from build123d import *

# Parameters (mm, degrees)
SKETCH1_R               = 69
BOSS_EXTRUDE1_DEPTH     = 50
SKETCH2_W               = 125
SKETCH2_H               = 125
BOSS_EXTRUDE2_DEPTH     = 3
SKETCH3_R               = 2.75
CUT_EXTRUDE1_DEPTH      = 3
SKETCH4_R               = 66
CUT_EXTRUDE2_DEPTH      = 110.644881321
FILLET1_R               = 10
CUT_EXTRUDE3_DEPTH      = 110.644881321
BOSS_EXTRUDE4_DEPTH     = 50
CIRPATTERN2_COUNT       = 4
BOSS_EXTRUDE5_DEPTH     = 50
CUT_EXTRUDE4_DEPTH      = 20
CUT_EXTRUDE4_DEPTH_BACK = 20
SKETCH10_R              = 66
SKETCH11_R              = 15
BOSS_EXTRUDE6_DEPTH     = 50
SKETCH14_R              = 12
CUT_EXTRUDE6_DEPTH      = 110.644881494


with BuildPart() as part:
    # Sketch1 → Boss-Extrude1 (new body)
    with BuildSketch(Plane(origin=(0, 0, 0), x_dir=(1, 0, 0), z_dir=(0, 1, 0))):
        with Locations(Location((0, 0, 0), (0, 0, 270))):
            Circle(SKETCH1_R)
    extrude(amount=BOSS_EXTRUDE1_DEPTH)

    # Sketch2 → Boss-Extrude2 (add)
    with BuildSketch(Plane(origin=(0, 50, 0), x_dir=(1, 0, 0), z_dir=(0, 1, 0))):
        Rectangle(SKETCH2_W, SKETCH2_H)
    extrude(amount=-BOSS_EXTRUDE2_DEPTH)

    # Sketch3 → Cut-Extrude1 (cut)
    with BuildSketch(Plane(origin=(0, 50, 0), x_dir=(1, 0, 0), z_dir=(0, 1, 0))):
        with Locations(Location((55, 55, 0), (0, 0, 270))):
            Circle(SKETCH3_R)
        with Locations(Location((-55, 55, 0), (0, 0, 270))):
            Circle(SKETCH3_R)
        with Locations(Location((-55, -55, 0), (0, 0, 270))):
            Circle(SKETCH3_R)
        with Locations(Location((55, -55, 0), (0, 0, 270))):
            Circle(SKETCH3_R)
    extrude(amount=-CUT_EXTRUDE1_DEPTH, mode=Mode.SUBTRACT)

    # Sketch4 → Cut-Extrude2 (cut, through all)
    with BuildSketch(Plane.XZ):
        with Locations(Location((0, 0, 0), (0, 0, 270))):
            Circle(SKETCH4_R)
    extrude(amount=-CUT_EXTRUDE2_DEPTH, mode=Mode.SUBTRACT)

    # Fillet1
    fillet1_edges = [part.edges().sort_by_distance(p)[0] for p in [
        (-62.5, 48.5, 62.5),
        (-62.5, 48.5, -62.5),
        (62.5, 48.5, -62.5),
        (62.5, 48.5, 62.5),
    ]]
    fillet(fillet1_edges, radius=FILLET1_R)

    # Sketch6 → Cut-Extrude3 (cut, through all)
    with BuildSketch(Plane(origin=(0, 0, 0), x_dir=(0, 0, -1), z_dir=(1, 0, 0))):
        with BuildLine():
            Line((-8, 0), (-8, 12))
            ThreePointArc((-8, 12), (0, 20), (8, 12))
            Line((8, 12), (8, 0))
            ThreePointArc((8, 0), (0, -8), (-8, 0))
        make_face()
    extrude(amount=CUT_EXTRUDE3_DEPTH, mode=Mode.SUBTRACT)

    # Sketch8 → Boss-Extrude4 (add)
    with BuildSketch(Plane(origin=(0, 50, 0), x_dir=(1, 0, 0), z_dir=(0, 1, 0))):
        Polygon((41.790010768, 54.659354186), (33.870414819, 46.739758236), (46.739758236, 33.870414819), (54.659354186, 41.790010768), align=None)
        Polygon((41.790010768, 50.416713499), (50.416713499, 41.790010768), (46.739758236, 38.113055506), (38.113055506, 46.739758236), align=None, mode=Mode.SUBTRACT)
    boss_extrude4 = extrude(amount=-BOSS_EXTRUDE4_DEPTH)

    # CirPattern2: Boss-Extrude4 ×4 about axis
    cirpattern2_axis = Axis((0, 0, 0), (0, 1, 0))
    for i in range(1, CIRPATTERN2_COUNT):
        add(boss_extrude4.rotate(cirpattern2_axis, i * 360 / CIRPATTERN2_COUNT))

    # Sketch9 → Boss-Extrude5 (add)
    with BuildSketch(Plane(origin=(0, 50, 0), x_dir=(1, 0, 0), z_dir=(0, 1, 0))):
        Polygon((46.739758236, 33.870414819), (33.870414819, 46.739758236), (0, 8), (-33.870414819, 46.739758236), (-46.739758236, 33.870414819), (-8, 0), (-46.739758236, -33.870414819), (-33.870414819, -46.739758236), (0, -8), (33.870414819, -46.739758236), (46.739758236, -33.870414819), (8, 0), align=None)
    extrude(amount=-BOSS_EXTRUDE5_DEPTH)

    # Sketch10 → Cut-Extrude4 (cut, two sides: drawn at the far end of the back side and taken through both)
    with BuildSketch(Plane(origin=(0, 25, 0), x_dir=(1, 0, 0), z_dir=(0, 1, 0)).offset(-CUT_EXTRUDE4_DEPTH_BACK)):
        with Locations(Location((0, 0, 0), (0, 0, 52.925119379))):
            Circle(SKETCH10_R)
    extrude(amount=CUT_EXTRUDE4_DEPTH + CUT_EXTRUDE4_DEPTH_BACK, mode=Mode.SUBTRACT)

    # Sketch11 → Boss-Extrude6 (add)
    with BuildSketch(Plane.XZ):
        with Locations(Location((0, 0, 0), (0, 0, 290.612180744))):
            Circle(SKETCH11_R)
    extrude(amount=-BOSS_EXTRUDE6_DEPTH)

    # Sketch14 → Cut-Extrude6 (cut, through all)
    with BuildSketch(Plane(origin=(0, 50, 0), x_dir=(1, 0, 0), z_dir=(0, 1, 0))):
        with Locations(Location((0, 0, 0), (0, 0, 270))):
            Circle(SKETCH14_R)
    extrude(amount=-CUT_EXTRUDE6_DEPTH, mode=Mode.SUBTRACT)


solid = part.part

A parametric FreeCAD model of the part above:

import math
import FreeCAD as App
import Part
import Sketcher
Q = App.Units.Quantity


def edges_at(feature, points):
    """Names of the edges that pass closest to the given points."""
    edges = feature.Shape.Edges
    near = lambda p: min(range(len(edges)), key=lambda i: edges[i].distToShape(Part.Vertex(*p))[0])
    return sorted({f"Edge{near(p) + 1}" for p in points})


def add_polygon(sketch, points):
    """Adds a closed chain of lines whose ends are joined by coincident constraints."""
    first, n = sketch.GeometryCount, len(points)
    for a, b in zip(points, points[1:] + points[:1]):
        sketch.addGeometry(Part.LineSegment(App.Vector(*a, 0), App.Vector(*b, 0)), False)
    for i in range(n):
        sketch.addConstraint(Sketcher.Constraint("Coincident", first + i, 2, first + (i + 1) % n, 1))

doc = App.newDocument("Part")
body = doc.addObject("PartDesign::Body", "Body")

sketch1 = body.newObject("Sketcher::SketchObject", "Sketch")
sketch1.AttachmentSupport = (doc.getObject("XZ_Plane"), [""])
sketch1.MapMode = "FlatFace"
sketch1.addGeometry(Part.Circle(App.Vector(0, 0, 0), App.Vector(0, 0, 1), 69), False)
sketch1.addConstraint(Sketcher.Constraint("Coincident", 0, 3, -1, 1))
sketch1.addConstraint(Sketcher.Constraint("Diameter", 0, Q("138 mm")))
pad1 = body.newObject("PartDesign::Pad", "Pad")
pad1.Profile = sketch1
pad1.Length = 50
pad1.Reversed = True

sketch2 = body.newObject("Sketcher::SketchObject", "Sketch001")
sketch2.AttachmentSupport = (doc.getObject("XZ_Plane"), [""])
sketch2.MapMode = "FlatFace"
sketch2.AttachmentOffset = App.Placement(App.Vector(0, 0, -50), App.Rotation())
add_polygon(sketch2, [(-62.5, -62.5), (-62.5, 62.5), (62.5, 62.5), (62.5, -62.5)])
sketch2.addConstraint(Sketcher.Constraint("Vertical", 0))
sketch2.addConstraint(Sketcher.Constraint("Horizontal", 1))
sketch2.addConstraint(Sketcher.Constraint("Vertical", 2))
sketch2.addConstraint(Sketcher.Constraint("Horizontal", 3))
sketch2.addConstraint(Sketcher.Constraint("Symmetric", 0, 2, 2, 2, -1, 1))
sketch2.addConstraint(Sketcher.Constraint("Equal", 3, 0))
sketch2.addConstraint(Sketcher.Constraint("DistanceX", 1, 1, 1, 2, Q("125 mm")))
pad2 = body.newObject("PartDesign::Pad", "Pad001")
pad2.Profile = sketch2
pad2.Length = 3

sketch3 = body.newObject("Sketcher::SketchObject", "Sketch002")
sketch3.AttachmentSupport = (doc.getObject("XZ_Plane"), [""])
sketch3.MapMode = "FlatFace"
sketch3.AttachmentOffset = App.Placement(App.Vector(0, 0, -50), App.Rotation())
sketch3.addGeometry(Part.Circle(App.Vector(55, -55, 0), App.Vector(0, 0, 1), 2.75), False)
sketch3.addGeometry(Part.Circle(App.Vector(-55, -55, 0), App.Vector(0, 0, 1), 2.75), False)
sketch3.addGeometry(Part.Circle(App.Vector(-55, 55, 0), App.Vector(0, 0, 1), 2.75), False)
sketch3.addGeometry(Part.Circle(App.Vector(55, 55, 0), App.Vector(0, 0, 1), 2.75), False)
sketch3.addConstraint(Sketcher.Constraint("Equal", 0, 1))
sketch3.addConstraint(Sketcher.Constraint("Equal", 1, 2))
sketch3.addConstraint(Sketcher.Constraint("Equal", 2, 3))
sketch3.addConstraint(Sketcher.Constraint("Symmetric", 0, 3, 2, 3, -1, 1))
sketch3.addConstraint(Sketcher.Constraint("Symmetric", 1, 3, 3, 3, -1, 1))
sketch3.addConstraint(Sketcher.Constraint("Symmetric", 0, 3, 1, 3, -2))
sketch3.addConstraint(Sketcher.Constraint("Diameter", 0, Q("5.5 mm")))
sketch3.addConstraint(Sketcher.Constraint("DistanceX", -1, 1, 0, 3, Q("55 mm")))
sketch3.addConstraint(Sketcher.Constraint("DistanceY", 0, 3, -1, 1, Q("55 mm")))
pocket1 = body.newObject("PartDesign::Pocket", "Pocket")
pocket1.Profile = sketch3
pocket1.Length = 3
pocket1.Reversed = True

sketch4 = body.newObject("Sketcher::SketchObject", "Sketch003")
sketch4.AttachmentSupport = (doc.getObject("XZ_Plane"), [""])
sketch4.MapMode = "FlatFace"
sketch4.addGeometry(Part.Circle(App.Vector(0, 0, 0), App.Vector(0, 0, 1), 66), False)
sketch4.addConstraint(Sketcher.Constraint("Coincident", 0, 3, -1, 1))
sketch4.addConstraint(Sketcher.Constraint("Diameter", 0, Q("132 mm")))
pocket2 = body.newObject("PartDesign::Pocket", "Pocket001")
pocket2.Profile = sketch4
pocket2.Type = "ThroughAll"
doc.recompute()

fillet = body.newObject("PartDesign::Fillet", "Fillet")
fillet.Base = (pocket2, edges_at(pocket2, [
    (-62.5, 48.5, 62.5),
    (-62.5, 48.5, -62.5),
    (62.5, 48.5, -62.5),
    (62.5, 48.5, 62.5),
]))
fillet.Radius = 10

sketch5 = body.newObject("Sketcher::SketchObject", "Sketch004")
sketch5.AttachmentSupport = (doc.getObject("YZ_Plane"), [""])
sketch5.MapMode = "FlatFace"
sketch5.addGeometry(Part.LineSegment(App.Vector(12, 8, 0), App.Vector(0, 8, 0)), False)
sketch5.addGeometry(Part.ArcOfCircle(Part.Circle(App.Vector(0, 0, 0), App.Vector(0, 0, 1), 8), math.radians(90), math.radians(270)), False)
sketch5.addGeometry(Part.LineSegment(App.Vector(0, -8, 0), App.Vector(12, -8, 0)), False)
sketch5.addGeometry(Part.ArcOfCircle(Part.Circle(App.Vector(12, 0, 0), App.Vector(0, 0, 1), 8), math.radians(-90), math.radians(90)), False)
sketch5.addConstraint(Sketcher.Constraint("Tangent", 0, 2, 1, 1))
sketch5.addConstraint(Sketcher.Constraint("Tangent", 1, 2, 2, 1))
sketch5.addConstraint(Sketcher.Constraint("Tangent", 2, 2, 3, 1))
sketch5.addConstraint(Sketcher.Constraint("Tangent", 3, 2, 0, 1))
sketch5.addConstraint(Sketcher.Constraint("Horizontal", 0))
sketch5.addConstraint(Sketcher.Constraint("Horizontal", 2))
sketch5.addConstraint(Sketcher.Constraint("Coincident", 1, 3, -1, 1))
sketch5.addConstraint(Sketcher.Constraint("Radius", 1, Q("8 mm")))
sketch5.addConstraint(Sketcher.Constraint("DistanceX", 0, 2, 0, 1, Q("12 mm")))
pocket3 = body.newObject("PartDesign::Pocket", "Pocket002")
pocket3.Profile = sketch5
pocket3.Type = "ThroughAll"
pocket3.Reversed = True

sketch6 = body.newObject("Sketcher::SketchObject", "Sketch005")
sketch6.AttachmentSupport = (doc.getObject("XZ_Plane"), [""])
sketch6.MapMode = "FlatFace"
sketch6.AttachmentOffset = App.Placement(App.Vector(0, 0, -50), App.Rotation())
add_polygon(sketch6, [(41.790011, -54.659354), (33.870415, -46.739758), (46.739758, -33.870415), (54.659354, -41.790011)])
add_polygon(sketch6, [(38.113056, -46.739758), (41.790011, -50.416713), (50.416713, -41.790011), (46.739758, -38.113056)])
sketch6.addConstraint(Sketcher.Constraint("Perpendicular", 0, 1))
sketch6.addConstraint(Sketcher.Constraint("Perpendicular", 1, 2))
sketch6.addConstraint(Sketcher.Constraint("Perpendicular", 2, 3))
sketch6.addConstraint(Sketcher.Constraint("Perpendicular", 3, 4))
sketch6.addConstraint(Sketcher.Constraint("Perpendicular", 4, 5))
sketch6.addConstraint(Sketcher.Constraint("Perpendicular", 5, 6))
sketch6.addConstraint(Sketcher.Constraint("Perpendicular", 6, 7))
sketch6.addConstraint(Sketcher.Constraint("Horizontal", 2, 2, 5, 2))
sketch6.addConstraint(Sketcher.Constraint("Horizontal", 0, 2, 7, 2))
sketch6.addConstraint(Sketcher.Constraint("Vertical", 3, 2, 4, 2))
sketch6.addConstraint(Sketcher.Constraint("Vertical", 1, 2, 6, 2))
sketch6.addConstraint(Sketcher.Constraint("Distance", 0, Q("11.2 mm")))
sketch6.addConstraint(Sketcher.Constraint("Distance", 1, Q("18.2 mm")))
sketch6.addConstraint(Sketcher.Constraint("Distance", 4, Q("5.2 mm")))
sketch6.addConstraint(Sketcher.Constraint("DistanceY", 0, 2, -1, 1, Q("46.739758 mm")))
sketch6.addConstraint(Sketcher.Constraint("DistanceX", -1, 1, 1, 2, Q("46.739758 mm")))
pad3 = body.newObject("PartDesign::Pad", "Pad002")
pad3.Profile = sketch6
pad3.Length = 50
doc.recompute()

polarpattern = body.newObject("PartDesign::PolarPattern", "PolarPattern")
polarpattern.Originals = [pad3]
polarpattern.Axis = (doc.getObject("Y_Axis"), [""])
polarpattern.Angle = 360
polarpattern.Occurrences = 4
body.Tip = polarpattern

sketch7 = body.newObject("Sketcher::SketchObject", "Sketch006")
sketch7.AttachmentSupport = (doc.getObject("XZ_Plane"), [""])
sketch7.MapMode = "FlatFace"
sketch7.AttachmentOffset = App.Placement(App.Vector(0, 0, -50), App.Rotation())
add_polygon(sketch7, [(46.739758, -33.870415), (33.870415, -46.739758), (0, -8), (-33.870415, -46.739758), (-46.739758, -33.870415), (-8, 0), (-46.739758, 33.870415), (-33.870415, 46.739758), (0, 8), (33.870415, 46.739758), (46.739758, 33.870415), (8, 0)])
sketch7.addConstraint(Sketcher.Constraint("Symmetric", 0, 2, 6, 2, -1, 1))
sketch7.addConstraint(Sketcher.Constraint("Symmetric", 1, 2, 7, 2, -1, 1))
sketch7.addConstraint(Sketcher.Constraint("Symmetric", 2, 2, 8, 2, -1, 1))
sketch7.addConstraint(Sketcher.Constraint("Symmetric", 3, 2, 9, 2, -1, 1))
sketch7.addConstraint(Sketcher.Constraint("Symmetric", 4, 2, 10, 2, -1, 1))
sketch7.addConstraint(Sketcher.Constraint("Symmetric", 5, 2, 11, 2, -1, 1))
sketch7.addConstraint(Sketcher.Constraint("Symmetric", 0, 2, 2, 2, -2))
sketch7.addConstraint(Sketcher.Constraint("Symmetric", 5, 2, 9, 2, -2))
sketch7.addConstraint(Sketcher.Constraint("PointOnObject", 1, 2, -2))
sketch7.addConstraint(Sketcher.Constraint("PointOnObject", 4, 2, -1))
sketch7.addConstraint(Sketcher.Constraint("Perpendicular", 0, 3))
sketch7.addConstraint(Sketcher.Constraint("Perpendicular", 1, 4))
sketch7.addConstraint(Sketcher.Constraint("Equal", 2, 4))
sketch7.addConstraint(Sketcher.Constraint("DistanceY", 1, 2, -1, 1, Q("8 mm")))
sketch7.addConstraint(Sketcher.Constraint("Distance", 0, Q("18.2 mm")))
sketch7.addConstraint(Sketcher.Constraint("DistanceY", 0, 2, -1, 1, Q("46.739758 mm")))
pad4 = body.newObject("PartDesign::Pad", "Pad003")
pad4.Profile = sketch7
pad4.Length = 50

sketch8 = body.newObject("Sketcher::SketchObject", "Sketch007")
sketch8.AttachmentSupport = (doc.getObject("XZ_Plane"), [""])
sketch8.MapMode = "FlatFace"
sketch8.AttachmentOffset = App.Placement(App.Vector(0, 0, -25), App.Rotation())
sketch8.addGeometry(Part.Circle(App.Vector(0, 0, 0), App.Vector(0, 0, 1), 66), False)
sketch8.addConstraint(Sketcher.Constraint("Coincident", 0, 3, -1, 1))
sketch8.addConstraint(Sketcher.Constraint("Diameter", 0, Q("132 mm")))
pocket4 = body.newObject("PartDesign::Pocket", "Pocket003")
pocket4.Profile = sketch8
pocket4.Type = "TwoLengths"
pocket4.Length = 20
pocket4.Length2 = 20

sketch9 = body.newObject("Sketcher::SketchObject", "Sketch008")
sketch9.AttachmentSupport = (doc.getObject("XZ_Plane"), [""])
sketch9.MapMode = "FlatFace"
sketch9.addGeometry(Part.Circle(App.Vector(0, 0, 0), App.Vector(0, 0, 1), 15), False)
sketch9.addConstraint(Sketcher.Constraint("Coincident", 0, 3, -1, 1))
sketch9.addConstraint(Sketcher.Constraint("Diameter", 0, Q("30 mm")))
pad5 = body.newObject("PartDesign::Pad", "Pad004")
pad5.Profile = sketch9
pad5.Length = 50
pad5.Reversed = True

sketch10 = body.newObject("Sketcher::SketchObject", "Sketch009")
sketch10.AttachmentSupport = (doc.getObject("XZ_Plane"), [""])
sketch10.MapMode = "FlatFace"
sketch10.AttachmentOffset = App.Placement(App.Vector(0, 0, -50), App.Rotation())
sketch10.addGeometry(Part.Circle(App.Vector(0, 0, 0), App.Vector(0, 0, 1), 12), False)
sketch10.addConstraint(Sketcher.Constraint("Coincident", 0, 3, -1, 1))
sketch10.addConstraint(Sketcher.Constraint("Diameter", 0, Q("24 mm")))
pocket5 = body.newObject("PartDesign::Pocket", "Pocket004")
pocket5.Profile = sketch10
pocket5.Type = "ThroughAll"
pocket5.Reversed = True

doc.recompute()
